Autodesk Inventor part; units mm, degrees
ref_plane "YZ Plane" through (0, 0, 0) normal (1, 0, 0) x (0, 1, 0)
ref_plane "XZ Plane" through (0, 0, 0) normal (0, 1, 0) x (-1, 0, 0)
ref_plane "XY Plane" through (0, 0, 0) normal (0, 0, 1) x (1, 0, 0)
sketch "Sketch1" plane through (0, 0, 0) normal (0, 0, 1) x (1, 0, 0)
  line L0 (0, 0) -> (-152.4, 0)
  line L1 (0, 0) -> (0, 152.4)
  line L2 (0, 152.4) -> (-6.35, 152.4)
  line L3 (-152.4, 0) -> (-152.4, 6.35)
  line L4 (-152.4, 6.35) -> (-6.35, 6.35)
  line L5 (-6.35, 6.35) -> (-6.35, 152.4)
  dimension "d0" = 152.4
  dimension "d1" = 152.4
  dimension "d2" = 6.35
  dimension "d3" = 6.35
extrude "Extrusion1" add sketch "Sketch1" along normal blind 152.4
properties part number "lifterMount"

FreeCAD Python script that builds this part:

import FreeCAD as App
import Part
import Sketcher
from FreeCAD import Vector
Q = App.Units.Quantity


def add_polygon(sketch, points):
    """Adds a closed chain of lines whose ends are joined by coincident constraints."""
    first, n = sketch.GeometryCount, len(points)
    for a, b in zip(points, points[1:] + points[:1]):
        sketch.addGeometry(Part.LineSegment(App.Vector(*a, 0), App.Vector(*b, 0)), False)
    for i in range(n):
        sketch.addConstraint(Sketcher.Constraint("Coincident", first + i, 2, first + (i + 1) % n, 1))

doc = App.newDocument("Part")
params = doc.addObject("Spreadsheet::Sheet", "Params")
for row, (alias, value) in enumerate([
    ("sketch1_width", "6 in"),
    ("sketch1_width2", "0.25 in"),
    ("pad1_length", "6 in"),
], start=1):
    params.set(f"A{row}", alias)
    params.set(f"B{row}", "=" + value)
    params.setAlias(f"B{row}", alias)

body = doc.addObject("PartDesign::Body", "Body")

# Sketch on XY plane
sketch1 = body.newObject("Sketcher::SketchObject", "Sketch")
sketch1.AttachmentSupport = (doc.getObject("XY_Plane"), [""])
sketch1.MapMode = "FlatFace"
add_polygon(sketch1, [(-152.4, 0), (0, 0), (0, 152.4), (-6.35, 152.4), (-6.35, 6.35), (-152.4, 6.35)])  # lines 0-5
sketch1.addConstraint([
    Sketcher.Constraint("Horizontal", 0),
    Sketcher.Constraint("Vertical", 1),
    Sketcher.Constraint("Horizontal", 2),
    Sketcher.Constraint("Vertical", 3),
    Sketcher.Constraint("Horizontal", 4),
    Sketcher.Constraint("Vertical", 5),
    Sketcher.Constraint("Coincident", 0, 2, -1, 1),
    Sketcher.Constraint("Equal", 0, 1),
    Sketcher.Constraint("Equal", 4, 3),
    Sketcher.Constraint("DistanceX", 0, 1, 0, 2, Q("6 in")),
    Sketcher.Constraint("DistanceX", 2, 2, 2, 1, Q("0.25 in")),
])
sketch1.setExpression("Constraints[15]", "Params.sketch1_width")
sketch1.setExpression("Constraints[16]", "Params.sketch1_width2")
pad1 = body.newObject("PartDesign::Pad", "Pad")
pad1.Profile = sketch1
pad1.setExpression("Length", "Params.pad1_length")

doc.recompute()
